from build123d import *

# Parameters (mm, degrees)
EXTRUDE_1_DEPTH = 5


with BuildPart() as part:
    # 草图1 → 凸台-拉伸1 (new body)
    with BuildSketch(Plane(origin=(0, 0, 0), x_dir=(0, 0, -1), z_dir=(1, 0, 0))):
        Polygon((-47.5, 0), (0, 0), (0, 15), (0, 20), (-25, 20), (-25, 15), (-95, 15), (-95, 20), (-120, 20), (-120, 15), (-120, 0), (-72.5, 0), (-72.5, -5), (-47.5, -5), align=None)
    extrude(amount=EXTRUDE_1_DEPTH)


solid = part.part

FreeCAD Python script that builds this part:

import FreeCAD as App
import Part
import Sketcher


def add_polygon(sketch, points):
    """Adds a closed chain of lines whose ends are joined by coincident constraints."""
    first, n = sketch.GeometryCount, len(points)
    for a, b in zip(points, points[1:] + points[:1]):
        sketch.addGeometry(Part.LineSegment(App.Vector(*a, 0), App.Vector(*b, 0)), False)
    for i in range(n):
        sketch.addConstraint(Sketcher.Constraint("Coincident", first + i, 2, first + (i + 1) % n, 1))

doc = App.newDocument("Part")
body = doc.addObject("PartDesign::Body", "Body")

sketch1 = body.newObject("Sketcher::SketchObject", "Sketch")
sketch1.AttachmentSupport = (doc.getObject("YZ_Plane"), [""])
sketch1.MapMode = "FlatFace"
add_polygon(sketch1, [(0, 48), (0, 0), (20, 0), (20, 25), (15, 25), (15, 95), (20, 95), (20, 120), (0, 120), (0, 72), (-5, 72), (-5, 48)])
sketch1.addConstraint(Sketcher.Constraint("Vertical", 0))
sketch1.addConstraint(Sketcher.Constraint("Horizontal", 1))
sketch1.addConstraint(Sketcher.Constraint("Vertical", 2))
sketch1.addConstraint(Sketcher.Constraint("Horizontal", 3))
sketch1.addConstraint(Sketcher.Constraint("Vertical", 4))
sketch1.addConstraint(Sketcher.Constraint("Horizontal", 5))
sketch1.addConstraint(Sketcher.Constraint("Vertical", 6))
sketch1.addConstraint(Sketcher.Constraint("Horizontal", 7))
sketch1.addConstraint(Sketcher.Constraint("Vertical", 8))
sketch1.addConstraint(Sketcher.Constraint("Horizontal", 9))
sketch1.addConstraint(Sketcher.Constraint("Vertical", 10))
sketch1.addConstraint(Sketcher.Constraint("Horizontal", 11))
sketch1.addConstraint(Sketcher.Constraint("Coincident", 0, 2, -1, 1))
sketch1.addConstraint(Sketcher.Constraint("PointOnObject", 7, 2, -2))
sketch1.addConstraint(Sketcher.Constraint("Vertical", 2, 2, 5, 2))
sketch1.addConstraint(Sketcher.Constraint("Equal", 5, 9))
sketch1.addConstraint(Sketcher.Constraint("Equal", 2, 6))
sketch1.addConstraint(Sketcher.Constraint("Equal", 0, 8))
sketch1.addConstraint(Sketcher.Constraint("Equal", 6, 10))
sketch1.addConstraint(Sketcher.Constraint("DistanceX", 1, 1, 1, 2, 20.0))
sketch1.addConstraint(Sketcher.Constraint("DistanceX", 3, 2, 3, 1, 5.0))
sketch1.addConstraint(Sketcher.Constraint("DistanceY", 2, 1, 2, 2, 25.0))
sketch1.addConstraint(Sketcher.Constraint("DistanceY", 4, 1, 4, 2, 70.0))
pad1 = body.newObject("PartDesign::Pad", "Pad")
pad1.Profile = sketch1
pad1.Length = 5

doc.recompute()
